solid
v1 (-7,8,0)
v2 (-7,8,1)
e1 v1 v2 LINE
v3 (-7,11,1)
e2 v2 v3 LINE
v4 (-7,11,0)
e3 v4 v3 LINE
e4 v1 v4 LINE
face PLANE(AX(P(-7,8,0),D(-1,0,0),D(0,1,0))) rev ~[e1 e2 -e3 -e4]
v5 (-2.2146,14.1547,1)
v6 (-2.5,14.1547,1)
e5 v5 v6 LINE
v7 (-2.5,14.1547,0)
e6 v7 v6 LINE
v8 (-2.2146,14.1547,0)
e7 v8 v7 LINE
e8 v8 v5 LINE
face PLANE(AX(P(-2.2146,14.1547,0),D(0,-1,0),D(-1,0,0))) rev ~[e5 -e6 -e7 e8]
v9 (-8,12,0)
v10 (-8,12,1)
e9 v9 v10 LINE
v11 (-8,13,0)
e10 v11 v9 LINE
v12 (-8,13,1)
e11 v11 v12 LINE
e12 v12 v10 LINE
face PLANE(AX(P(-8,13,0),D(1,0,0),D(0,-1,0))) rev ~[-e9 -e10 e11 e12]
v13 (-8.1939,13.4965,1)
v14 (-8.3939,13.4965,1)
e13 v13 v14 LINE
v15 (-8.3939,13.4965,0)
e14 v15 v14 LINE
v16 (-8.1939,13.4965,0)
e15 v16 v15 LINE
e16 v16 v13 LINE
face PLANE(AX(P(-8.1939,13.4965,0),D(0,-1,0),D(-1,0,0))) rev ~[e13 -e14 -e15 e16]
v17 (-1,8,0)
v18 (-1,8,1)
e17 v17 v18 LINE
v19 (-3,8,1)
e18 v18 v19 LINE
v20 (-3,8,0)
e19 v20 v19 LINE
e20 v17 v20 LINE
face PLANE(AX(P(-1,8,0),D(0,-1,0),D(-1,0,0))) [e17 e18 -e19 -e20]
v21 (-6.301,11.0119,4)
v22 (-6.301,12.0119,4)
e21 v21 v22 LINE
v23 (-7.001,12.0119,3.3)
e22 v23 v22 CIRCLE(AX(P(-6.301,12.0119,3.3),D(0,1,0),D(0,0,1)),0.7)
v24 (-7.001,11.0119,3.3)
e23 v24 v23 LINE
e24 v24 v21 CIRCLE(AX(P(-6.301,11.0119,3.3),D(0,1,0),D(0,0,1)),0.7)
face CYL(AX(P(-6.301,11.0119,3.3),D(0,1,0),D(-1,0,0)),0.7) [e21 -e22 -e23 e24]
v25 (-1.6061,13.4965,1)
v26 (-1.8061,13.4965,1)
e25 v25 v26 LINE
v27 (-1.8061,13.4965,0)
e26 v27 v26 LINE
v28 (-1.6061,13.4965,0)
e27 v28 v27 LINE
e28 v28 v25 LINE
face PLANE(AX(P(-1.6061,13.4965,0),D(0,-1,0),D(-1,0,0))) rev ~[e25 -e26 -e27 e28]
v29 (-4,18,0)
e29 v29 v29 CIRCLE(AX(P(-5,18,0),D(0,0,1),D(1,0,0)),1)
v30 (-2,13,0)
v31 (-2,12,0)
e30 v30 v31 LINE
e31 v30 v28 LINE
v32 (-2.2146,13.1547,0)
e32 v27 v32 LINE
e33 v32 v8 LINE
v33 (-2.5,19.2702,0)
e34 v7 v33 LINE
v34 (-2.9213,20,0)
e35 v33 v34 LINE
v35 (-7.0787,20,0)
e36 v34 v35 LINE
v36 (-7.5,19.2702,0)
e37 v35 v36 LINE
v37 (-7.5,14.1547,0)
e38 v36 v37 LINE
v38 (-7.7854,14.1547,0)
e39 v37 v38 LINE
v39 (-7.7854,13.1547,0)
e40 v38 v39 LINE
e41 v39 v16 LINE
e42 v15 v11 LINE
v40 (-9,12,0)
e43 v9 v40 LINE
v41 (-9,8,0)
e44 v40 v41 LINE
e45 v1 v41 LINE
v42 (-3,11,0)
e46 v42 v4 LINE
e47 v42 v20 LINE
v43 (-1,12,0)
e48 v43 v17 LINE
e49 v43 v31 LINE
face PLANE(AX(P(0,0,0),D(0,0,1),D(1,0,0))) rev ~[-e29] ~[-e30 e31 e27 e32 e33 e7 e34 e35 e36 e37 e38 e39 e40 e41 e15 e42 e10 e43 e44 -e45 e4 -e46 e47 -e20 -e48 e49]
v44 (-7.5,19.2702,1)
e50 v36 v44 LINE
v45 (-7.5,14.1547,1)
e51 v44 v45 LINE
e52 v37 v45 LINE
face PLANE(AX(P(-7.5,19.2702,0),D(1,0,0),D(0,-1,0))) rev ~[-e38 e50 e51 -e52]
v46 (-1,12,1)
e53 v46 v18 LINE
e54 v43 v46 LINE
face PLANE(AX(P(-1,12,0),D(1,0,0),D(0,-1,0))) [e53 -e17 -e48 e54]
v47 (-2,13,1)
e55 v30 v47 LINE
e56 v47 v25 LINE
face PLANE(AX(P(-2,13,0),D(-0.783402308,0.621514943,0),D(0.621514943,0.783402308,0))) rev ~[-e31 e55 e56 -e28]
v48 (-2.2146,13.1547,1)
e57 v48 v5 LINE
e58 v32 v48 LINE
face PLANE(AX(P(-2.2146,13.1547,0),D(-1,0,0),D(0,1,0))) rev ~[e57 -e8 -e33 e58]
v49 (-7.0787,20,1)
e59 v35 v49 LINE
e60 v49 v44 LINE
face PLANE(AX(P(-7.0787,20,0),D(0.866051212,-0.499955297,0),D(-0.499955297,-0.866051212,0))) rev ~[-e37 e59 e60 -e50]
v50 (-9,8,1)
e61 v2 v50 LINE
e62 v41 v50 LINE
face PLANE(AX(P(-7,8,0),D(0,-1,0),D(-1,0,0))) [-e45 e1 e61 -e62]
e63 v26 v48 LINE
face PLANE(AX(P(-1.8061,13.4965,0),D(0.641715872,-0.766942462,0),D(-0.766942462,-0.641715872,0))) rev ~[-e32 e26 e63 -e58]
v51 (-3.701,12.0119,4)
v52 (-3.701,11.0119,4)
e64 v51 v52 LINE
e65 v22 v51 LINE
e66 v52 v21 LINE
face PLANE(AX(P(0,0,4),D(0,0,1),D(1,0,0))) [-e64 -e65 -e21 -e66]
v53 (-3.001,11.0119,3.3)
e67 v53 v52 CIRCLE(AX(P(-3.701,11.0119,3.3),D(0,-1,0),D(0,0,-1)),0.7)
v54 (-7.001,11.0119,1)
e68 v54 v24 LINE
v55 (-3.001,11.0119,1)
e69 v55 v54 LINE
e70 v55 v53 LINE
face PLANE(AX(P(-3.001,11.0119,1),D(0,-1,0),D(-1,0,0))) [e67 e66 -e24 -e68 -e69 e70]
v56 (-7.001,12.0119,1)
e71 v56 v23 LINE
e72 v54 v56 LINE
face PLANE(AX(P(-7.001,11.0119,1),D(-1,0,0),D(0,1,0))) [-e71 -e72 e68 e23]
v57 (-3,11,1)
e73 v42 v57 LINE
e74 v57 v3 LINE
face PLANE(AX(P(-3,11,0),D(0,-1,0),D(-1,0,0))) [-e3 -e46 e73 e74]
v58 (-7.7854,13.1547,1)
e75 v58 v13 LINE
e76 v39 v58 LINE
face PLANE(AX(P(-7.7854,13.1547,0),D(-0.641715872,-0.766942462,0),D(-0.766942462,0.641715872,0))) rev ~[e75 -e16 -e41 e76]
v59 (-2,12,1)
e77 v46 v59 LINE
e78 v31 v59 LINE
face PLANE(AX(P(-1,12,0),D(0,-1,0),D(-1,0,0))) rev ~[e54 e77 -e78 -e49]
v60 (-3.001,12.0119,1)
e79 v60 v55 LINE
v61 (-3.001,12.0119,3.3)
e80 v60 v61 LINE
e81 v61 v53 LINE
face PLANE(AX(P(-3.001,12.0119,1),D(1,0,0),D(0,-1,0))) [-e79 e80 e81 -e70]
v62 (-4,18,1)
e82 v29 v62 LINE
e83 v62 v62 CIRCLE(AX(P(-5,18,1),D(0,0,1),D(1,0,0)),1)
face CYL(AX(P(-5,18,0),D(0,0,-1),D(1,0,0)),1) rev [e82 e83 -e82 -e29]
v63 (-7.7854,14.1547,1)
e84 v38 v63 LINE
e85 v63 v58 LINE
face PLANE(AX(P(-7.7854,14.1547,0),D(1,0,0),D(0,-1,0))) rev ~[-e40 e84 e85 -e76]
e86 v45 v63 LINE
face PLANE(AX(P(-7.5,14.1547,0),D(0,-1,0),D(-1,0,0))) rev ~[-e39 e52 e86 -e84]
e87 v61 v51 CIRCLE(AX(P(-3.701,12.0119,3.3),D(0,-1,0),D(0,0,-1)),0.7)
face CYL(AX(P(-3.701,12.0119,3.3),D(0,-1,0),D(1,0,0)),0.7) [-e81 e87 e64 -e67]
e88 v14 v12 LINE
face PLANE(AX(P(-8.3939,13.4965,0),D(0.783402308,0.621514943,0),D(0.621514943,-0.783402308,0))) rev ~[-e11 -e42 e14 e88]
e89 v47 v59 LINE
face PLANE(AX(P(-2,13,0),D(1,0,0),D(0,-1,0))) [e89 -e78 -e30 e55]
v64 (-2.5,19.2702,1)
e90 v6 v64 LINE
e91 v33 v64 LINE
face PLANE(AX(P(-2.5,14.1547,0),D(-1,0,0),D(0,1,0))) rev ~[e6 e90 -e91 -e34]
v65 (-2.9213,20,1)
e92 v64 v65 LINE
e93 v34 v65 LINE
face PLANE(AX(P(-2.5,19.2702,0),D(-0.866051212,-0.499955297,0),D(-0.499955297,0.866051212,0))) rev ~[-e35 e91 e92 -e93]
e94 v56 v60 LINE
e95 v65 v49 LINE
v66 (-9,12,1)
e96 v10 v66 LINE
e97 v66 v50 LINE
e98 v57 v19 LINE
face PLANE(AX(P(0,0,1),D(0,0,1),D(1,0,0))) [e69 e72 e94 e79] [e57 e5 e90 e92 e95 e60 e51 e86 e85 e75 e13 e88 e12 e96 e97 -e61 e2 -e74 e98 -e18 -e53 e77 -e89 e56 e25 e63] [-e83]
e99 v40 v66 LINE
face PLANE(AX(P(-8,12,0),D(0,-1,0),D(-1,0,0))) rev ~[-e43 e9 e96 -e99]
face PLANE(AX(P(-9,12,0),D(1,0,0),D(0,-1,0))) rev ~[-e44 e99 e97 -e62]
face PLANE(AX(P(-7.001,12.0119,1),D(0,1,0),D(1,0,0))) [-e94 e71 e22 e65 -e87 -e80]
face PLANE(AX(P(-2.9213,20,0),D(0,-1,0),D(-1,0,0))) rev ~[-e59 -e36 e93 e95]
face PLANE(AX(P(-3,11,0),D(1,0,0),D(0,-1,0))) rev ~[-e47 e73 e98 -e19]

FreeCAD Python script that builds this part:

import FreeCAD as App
import Part
import Sketcher

V = App.Vector
Q = App.Units.Quantity


def edges_at(feature, points):
    """Names of the edges that pass closest to the given points."""
    edges = feature.Shape.Edges
    near = lambda p: min(range(len(edges)), key=lambda i: edges[i].distToShape(Part.Vertex(*p))[0])
    return sorted({f"Edge{near(p) + 1}" for p in points})

doc = App.newDocument("Part")
body = doc.addObject("PartDesign::Body", "Body")

# Sketch on XY plane
sketch1 = body.newObject("Sketcher::SketchObject", "Sketch")
sketch1.AttachmentSupport = (doc.getObject("XY_Plane"), [""])
sketch1.MapMode = "FlatFace"
sketch1.addGeometry([
    Part.LineSegment(V(-8.1939, 13.4965, 0), V(-8.3939, 13.4965, 0)),  # 0
    Part.LineSegment(V(-8.3939, 13.4965, 0), V(-8, 13, 0)),  # 1
    Part.LineSegment(V(-8, 13, 0), V(-8, 12, 0)),  # 2
    Part.LineSegment(V(-8, 12, 0), V(-9, 12, 0)),  # 3
    Part.LineSegment(V(-9, 12, 0), V(-9, 8, 0)),  # 4
    Part.LineSegment(V(-9, 8, 0), V(-7, 8, 0)),  # 5
    Part.LineSegment(V(-7, 8, 0), V(-7, 11, 0)),  # 6
    Part.LineSegment(V(-7, 11, 0), V(-3, 11, 0)),  # 7
    Part.LineSegment(V(-3, 11, 0), V(-3, 8, 0)),  # 8
    Part.LineSegment(V(-3, 8, 0), V(-1, 8, 0)),  # 9
    Part.LineSegment(V(-1, 8, 0), V(-1, 12, 0)),  # 10
    Part.LineSegment(V(-1, 12, 0), V(-2, 12, 0)),  # 11
    Part.LineSegment(V(-2, 12, 0), V(-2, 13, 0)),  # 12
    Part.LineSegment(V(-2, 13, 0), V(-1.6061, 13.4965, 0)),  # 13
    Part.LineSegment(V(-1.6061, 13.4965, 0), V(-1.8061, 13.4965, 0)),  # 14
    Part.LineSegment(V(-1.8061, 13.4965, 0), V(-2.2146, 13.1547, 0)),  # 15
    Part.LineSegment(V(-2.2146, 13.1547, 0), V(-2.2146, 14.1547, 0)),  # 16
    Part.LineSegment(V(-2.2146, 14.1547, 0), V(-2.5, 14.1547, 0)),  # 17
    Part.LineSegment(V(-2.5, 14.1547, 0), V(-2.5, 19.2702, 0)),  # 18
    Part.LineSegment(V(-2.5, 19.2702, 0), V(-2.9213, 20, 0)),  # 19
    Part.LineSegment(V(-2.9213, 20, 0), V(-7.0787, 20, 0)),  # 20
    Part.LineSegment(V(-7.0787, 20, 0), V(-7.5, 19.2702, 0)),  # 21
    Part.LineSegment(V(-7.5, 19.2702, 0), V(-7.5, 14.1547, 0)),  # 22
    Part.LineSegment(V(-7.5, 14.1547, 0), V(-7.7854, 14.1547, 0)),  # 23
    Part.LineSegment(V(-7.7854, 14.1547, 0), V(-7.7854, 13.1547, 0)),  # 24
    Part.LineSegment(V(-7.7854, 13.1547, 0), V(-8.1939, 13.4965, 0)),  # 25
    Part.Circle(V(-5, 18, 0), V(0, 0, 1), 1),  # 26
], False)
sketch1.addConstraint([
    Sketcher.Constraint("Coincident", 0, 2, 1, 1),
    Sketcher.Constraint("Coincident", 1, 2, 2, 1),
    Sketcher.Constraint("Coincident", 2, 2, 3, 1),
    Sketcher.Constraint("Coincident", 3, 2, 4, 1),
    Sketcher.Constraint("Coincident", 4, 2, 5, 1),
    Sketcher.Constraint("Coincident", 5, 2, 6, 1),
    Sketcher.Constraint("Coincident", 6, 2, 7, 1),
    Sketcher.Constraint("Coincident", 7, 2, 8, 1),
    Sketcher.Constraint("Coincident", 8, 2, 9, 1),
    Sketcher.Constraint("Coincident", 9, 2, 10, 1),
    Sketcher.Constraint("Coincident", 10, 2, 11, 1),
    Sketcher.Constraint("Coincident", 11, 2, 12, 1),
    Sketcher.Constraint("Coincident", 12, 2, 13, 1),
    Sketcher.Constraint("Coincident", 13, 2, 14, 1),
    Sketcher.Constraint("Coincident", 14, 2, 15, 1),
    Sketcher.Constraint("Coincident", 15, 2, 16, 1),
    Sketcher.Constraint("Coincident", 16, 2, 17, 1),
    Sketcher.Constraint("Coincident", 17, 2, 18, 1),
    Sketcher.Constraint("Coincident", 18, 2, 19, 1),
    Sketcher.Constraint("Coincident", 19, 2, 20, 1),
    Sketcher.Constraint("Coincident", 20, 2, 21, 1),
    Sketcher.Constraint("Coincident", 21, 2, 22, 1),
    Sketcher.Constraint("Coincident", 22, 2, 23, 1),
    Sketcher.Constraint("Coincident", 23, 2, 24, 1),
    Sketcher.Constraint("Coincident", 24, 2, 25, 1),
    Sketcher.Constraint("Coincident", 25, 2, 0, 1),
    Sketcher.Constraint("Horizontal", 0),
    Sketcher.Constraint("Vertical", 2),
    Sketcher.Constraint("Horizontal", 3),
    Sketcher.Constraint("Vertical", 4),
    Sketcher.Constraint("Horizontal", 5),
    Sketcher.Constraint("Vertical", 6),
    Sketcher.Constraint("Horizontal", 7),
    Sketcher.Constraint("Vertical", 8),
    Sketcher.Constraint("Horizontal", 9),
    Sketcher.Constraint("Vertical", 10),
    Sketcher.Constraint("Horizontal", 11),
    Sketcher.Constraint("Vertical", 12),
    Sketcher.Constraint("Horizontal", 14),
    Sketcher.Constraint("Vertical", 16),
    Sketcher.Constraint("Horizontal", 17),
    Sketcher.Constraint("Vertical", 18),
    Sketcher.Constraint("Horizontal", 20),
    Sketcher.Constraint("Vertical", 22),
    Sketcher.Constraint("Horizontal", 23),
    Sketcher.Constraint("Vertical", 24),
    Sketcher.Constraint("Horizontal", 5, 2, 8, 2),
    Sketcher.Constraint("Horizontal", 3, 2, 10, 2),
    Sketcher.Constraint("Horizontal", 1, 2, 12, 2),
    Sketcher.Constraint("Horizontal", 0, 2, 13, 2),
    Sketcher.Constraint("Horizontal", 18, 2, 21, 2),
    Sketcher.Constraint("Horizontal", 17, 2, 22, 2),
    Sketcher.Constraint("Horizontal", 15, 2, 24, 2),
    Sketcher.Constraint("Equal", 5, 9),
    Sketcher.Constraint("Equal", 3, 11),
    Sketcher.Constraint("Equal", 0, 14),
    Sketcher.Constraint("Equal", 17, 23),
    Sketcher.Constraint("Equal", 11, 2),
    Sketcher.Constraint("Equal", 7, 4),
    Sketcher.Constraint("Equal", 12, 16),
    Sketcher.Constraint("Equal", 1, 13),
    Sketcher.Constraint("Equal", 19, 21),
    Sketcher.Constraint("Equal", 15, 25),
    Sketcher.Constraint("Diameter", 26, Q("2 mm")),
    Sketcher.Constraint("DistanceX", 3, 2, 3, 1, Q("1 mm")),
    Sketcher.Constraint("DistanceX", 5, 1, 5, 2, Q("2 mm")),
    Sketcher.Constraint("DistanceX", 7, 1, 7, 2, Q("4 mm")),
    Sketcher.Constraint("DistanceY", 6, 1, 6, 2, Q("3 mm")),
    Sketcher.Constraint("DistanceX", 0, 2, 0, 1, Q("0.2 mm")),
    Sketcher.Constraint("DistanceX", 26, 3, -1, 1, Q("5 mm")),
    Sketcher.Constraint("DistanceY", -1, 1, 26, 3, Q("18 mm")),
    Sketcher.Constraint("DistanceX", 1, 2, -1, 1, Q("8 mm")),
    Sketcher.Constraint("DistanceY", -1, 1, 1, 2, Q("13 mm")),
    Sketcher.Constraint("DistanceY", -1, 1, 19, 2, Q("20 mm")),
    Sketcher.Constraint("DistanceX", 21, 2, 18, 2, Q("5 mm")),
    Sketcher.Constraint("Angle", 15, Q("-140.08 deg")),
    Sketcher.Constraint("DistanceX", 17, 2, 17, 1, Q("0.2854 mm")),
    Sketcher.Constraint("DistanceX", 20, 2, 20, 1, Q("4.1574 mm")),
    Sketcher.Constraint("DistanceY", 18, 1, 18, 2, Q("5.1155 mm")),
    Sketcher.Constraint("DistanceX", 0, 2, -1, 1, Q("8.394 mm")),
    Sketcher.Constraint("Distance", 1, Q("0.6338 mm")),
])
pad1 = body.newObject("PartDesign::Pad", "Pad")
pad1.Profile = sketch1
pad1.Length = 1

# Sketch on XY plane
sketch2 = body.newObject("Sketcher::SketchObject", "Sketch001")
sketch2.AttachmentSupport = (doc.getObject("XY_Plane"), [""])
sketch2.MapMode = "FlatFace"
sketch2.AttachmentOffset = App.Placement(V(0, 0, 1), App.Rotation())
sketch2.addGeometry([
    Part.LineSegment(V(-7.001, 11.0119, 0), V(-3.001, 11.0119, 0)),
    Part.LineSegment(V(-3.001, 11.0119, 0), V(-3.001, 12.0119, 0)),
    Part.LineSegment(V(-3.001, 12.0119, 0), V(-7.001, 12.0119, 0)),
    Part.LineSegment(V(-7.001, 12.0119, 0), V(-7.001, 11.0119, 0)),
], False)
sketch2.addConstraint([
    Sketcher.Constraint("Coincident", 0, 2, 1, 1),
    Sketcher.Constraint("Coincident", 1, 2, 2, 1),
    Sketcher.Constraint("Coincident", 2, 2, 3, 1),
    Sketcher.Constraint("Coincident", 3, 2, 0, 1),
    Sketcher.Constraint("Horizontal", 0),
    Sketcher.Constraint("Vertical", 1),
    Sketcher.Constraint("Horizontal", 2),
    Sketcher.Constraint("Vertical", 3),
    Sketcher.Constraint("DistanceX", 0, 1, 0, 2, Q("4 mm")),
    Sketcher.Constraint("DistanceY", 1, 1, 1, 2, Q("1 mm")),
    Sketcher.Constraint("DistanceX", 0, 2, -1, 1, Q("3.001 mm")),
    Sketcher.Constraint("DistanceY", -1, 1, 0, 2, Q("11.012 mm")),
])
pad2 = body.newObject("PartDesign::Pad", "Pad001")
pad2.Profile = sketch2
pad2.Length = 3
doc.recompute()

fillet = body.newObject("PartDesign::Fillet", "Fillet")
fillet.Base = (pad2, edges_at(pad2, [(-7.001, 11.512, 4), (-3.001, 11.512, 4)]))
fillet.Radius = 0.7

doc.recompute()
